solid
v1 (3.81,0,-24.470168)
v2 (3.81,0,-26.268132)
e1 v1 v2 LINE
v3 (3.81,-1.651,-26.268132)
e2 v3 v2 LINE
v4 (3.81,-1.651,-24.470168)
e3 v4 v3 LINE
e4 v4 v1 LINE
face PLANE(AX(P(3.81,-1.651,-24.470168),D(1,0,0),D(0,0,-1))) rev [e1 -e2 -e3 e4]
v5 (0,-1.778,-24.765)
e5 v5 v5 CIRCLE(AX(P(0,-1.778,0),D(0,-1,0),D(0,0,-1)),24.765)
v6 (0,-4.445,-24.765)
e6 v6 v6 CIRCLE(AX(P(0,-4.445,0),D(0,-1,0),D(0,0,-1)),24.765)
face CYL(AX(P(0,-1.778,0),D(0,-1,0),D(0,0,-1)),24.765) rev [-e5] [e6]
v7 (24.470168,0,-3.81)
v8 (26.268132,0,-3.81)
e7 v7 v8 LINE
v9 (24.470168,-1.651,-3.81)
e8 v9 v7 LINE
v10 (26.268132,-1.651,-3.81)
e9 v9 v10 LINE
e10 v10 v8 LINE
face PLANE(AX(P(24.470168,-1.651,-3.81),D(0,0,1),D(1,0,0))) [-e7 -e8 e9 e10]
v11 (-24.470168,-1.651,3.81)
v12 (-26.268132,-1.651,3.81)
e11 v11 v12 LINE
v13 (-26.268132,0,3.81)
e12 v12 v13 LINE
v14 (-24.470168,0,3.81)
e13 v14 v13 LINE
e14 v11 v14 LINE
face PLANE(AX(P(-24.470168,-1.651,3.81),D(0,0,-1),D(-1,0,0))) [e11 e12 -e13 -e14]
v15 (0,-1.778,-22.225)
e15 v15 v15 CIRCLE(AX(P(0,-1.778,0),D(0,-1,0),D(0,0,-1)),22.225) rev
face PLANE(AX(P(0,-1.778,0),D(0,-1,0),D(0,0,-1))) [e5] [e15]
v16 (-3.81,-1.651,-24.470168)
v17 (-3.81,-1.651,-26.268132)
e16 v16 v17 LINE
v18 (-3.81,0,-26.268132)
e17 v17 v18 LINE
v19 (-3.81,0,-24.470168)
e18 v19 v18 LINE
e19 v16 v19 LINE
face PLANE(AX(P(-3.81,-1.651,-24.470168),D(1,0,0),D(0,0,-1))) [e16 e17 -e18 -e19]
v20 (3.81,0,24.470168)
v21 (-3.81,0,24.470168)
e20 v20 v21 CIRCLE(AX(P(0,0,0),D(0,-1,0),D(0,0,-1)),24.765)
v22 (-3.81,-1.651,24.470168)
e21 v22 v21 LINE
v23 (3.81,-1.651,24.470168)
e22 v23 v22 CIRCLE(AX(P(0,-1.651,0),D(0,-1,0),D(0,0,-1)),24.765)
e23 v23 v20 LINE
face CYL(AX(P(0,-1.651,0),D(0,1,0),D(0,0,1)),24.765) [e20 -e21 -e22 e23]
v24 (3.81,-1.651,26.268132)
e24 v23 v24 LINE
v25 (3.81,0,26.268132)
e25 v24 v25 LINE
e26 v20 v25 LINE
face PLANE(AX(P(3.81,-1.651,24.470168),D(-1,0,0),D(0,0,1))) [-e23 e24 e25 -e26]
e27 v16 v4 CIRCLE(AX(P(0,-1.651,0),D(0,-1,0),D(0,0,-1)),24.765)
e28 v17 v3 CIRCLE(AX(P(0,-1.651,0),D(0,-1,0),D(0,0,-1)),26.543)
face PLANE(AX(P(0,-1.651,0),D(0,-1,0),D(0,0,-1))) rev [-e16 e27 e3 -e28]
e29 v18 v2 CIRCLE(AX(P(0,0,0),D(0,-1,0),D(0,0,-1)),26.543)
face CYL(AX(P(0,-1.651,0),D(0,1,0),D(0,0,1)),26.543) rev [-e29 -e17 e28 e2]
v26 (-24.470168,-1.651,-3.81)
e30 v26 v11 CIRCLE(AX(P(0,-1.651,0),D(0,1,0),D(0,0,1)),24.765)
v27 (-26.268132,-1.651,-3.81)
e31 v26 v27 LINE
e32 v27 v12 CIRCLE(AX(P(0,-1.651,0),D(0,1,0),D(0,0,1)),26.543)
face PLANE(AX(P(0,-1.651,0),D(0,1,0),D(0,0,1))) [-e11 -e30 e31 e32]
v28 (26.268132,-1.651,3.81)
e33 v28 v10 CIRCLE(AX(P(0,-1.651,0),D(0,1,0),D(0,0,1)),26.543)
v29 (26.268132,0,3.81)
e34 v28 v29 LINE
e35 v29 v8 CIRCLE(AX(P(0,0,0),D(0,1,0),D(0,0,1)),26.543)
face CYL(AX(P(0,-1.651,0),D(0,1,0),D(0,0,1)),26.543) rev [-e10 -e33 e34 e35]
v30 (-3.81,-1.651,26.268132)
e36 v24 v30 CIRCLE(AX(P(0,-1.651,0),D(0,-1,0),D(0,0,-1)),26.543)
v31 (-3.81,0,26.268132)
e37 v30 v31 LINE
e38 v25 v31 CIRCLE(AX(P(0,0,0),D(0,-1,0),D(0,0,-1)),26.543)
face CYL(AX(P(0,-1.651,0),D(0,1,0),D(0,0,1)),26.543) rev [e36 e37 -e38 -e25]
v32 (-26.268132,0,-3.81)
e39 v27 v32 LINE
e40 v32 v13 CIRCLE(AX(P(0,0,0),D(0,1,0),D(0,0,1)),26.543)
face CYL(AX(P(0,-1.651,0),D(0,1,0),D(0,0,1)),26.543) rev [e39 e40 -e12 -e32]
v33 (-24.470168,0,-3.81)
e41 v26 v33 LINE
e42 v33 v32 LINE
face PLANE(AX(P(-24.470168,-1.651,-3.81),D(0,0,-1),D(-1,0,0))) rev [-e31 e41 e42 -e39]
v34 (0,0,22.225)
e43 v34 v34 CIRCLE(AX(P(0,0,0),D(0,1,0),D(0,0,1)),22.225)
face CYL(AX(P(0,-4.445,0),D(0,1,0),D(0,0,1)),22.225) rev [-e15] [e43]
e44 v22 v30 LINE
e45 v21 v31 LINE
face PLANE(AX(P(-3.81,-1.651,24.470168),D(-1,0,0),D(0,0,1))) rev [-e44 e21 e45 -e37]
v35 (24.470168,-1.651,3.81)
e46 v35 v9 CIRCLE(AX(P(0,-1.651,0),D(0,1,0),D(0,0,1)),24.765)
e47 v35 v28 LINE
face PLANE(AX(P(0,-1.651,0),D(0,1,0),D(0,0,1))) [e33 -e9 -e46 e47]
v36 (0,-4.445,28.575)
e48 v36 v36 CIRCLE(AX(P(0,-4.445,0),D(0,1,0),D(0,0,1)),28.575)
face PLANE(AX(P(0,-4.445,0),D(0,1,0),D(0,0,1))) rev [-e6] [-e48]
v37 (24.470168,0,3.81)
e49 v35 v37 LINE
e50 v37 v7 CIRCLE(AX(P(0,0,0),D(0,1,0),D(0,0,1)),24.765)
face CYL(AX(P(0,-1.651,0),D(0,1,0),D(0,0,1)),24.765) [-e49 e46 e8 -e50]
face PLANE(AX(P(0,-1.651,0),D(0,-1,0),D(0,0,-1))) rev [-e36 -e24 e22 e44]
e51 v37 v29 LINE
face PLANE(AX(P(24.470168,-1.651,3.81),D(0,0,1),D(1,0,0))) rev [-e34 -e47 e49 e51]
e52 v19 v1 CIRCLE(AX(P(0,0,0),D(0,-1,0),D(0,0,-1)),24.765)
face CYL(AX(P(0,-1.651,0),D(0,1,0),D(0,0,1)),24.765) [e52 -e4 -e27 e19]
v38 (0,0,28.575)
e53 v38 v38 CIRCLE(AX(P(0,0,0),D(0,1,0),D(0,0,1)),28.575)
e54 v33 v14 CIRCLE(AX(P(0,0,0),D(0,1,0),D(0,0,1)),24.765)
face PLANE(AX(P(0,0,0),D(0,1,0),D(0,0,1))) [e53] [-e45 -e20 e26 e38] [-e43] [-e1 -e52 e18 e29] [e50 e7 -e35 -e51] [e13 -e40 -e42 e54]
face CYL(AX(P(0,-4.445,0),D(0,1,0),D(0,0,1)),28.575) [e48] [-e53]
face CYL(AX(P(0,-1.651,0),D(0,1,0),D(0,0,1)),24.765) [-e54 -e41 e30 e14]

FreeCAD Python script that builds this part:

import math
import FreeCAD as App
import Part
import Sketcher

V = App.Vector
Q = App.Units.Quantity

doc = App.newDocument("Part")
body = doc.addObject("PartDesign::Body", "Body")

sketch1 = doc.addObject("Sketcher::SketchObject", "Sketch")
body.addObject(sketch1)
sketch1.AttachmentSupport = (doc.XZ_Plane, [""])
sketch1.MapMode = "FlatFace"
sketch1.addGeometry(Part.Circle(V(0, 0, 0), V(0, 0, 1), 28.575), False)
sketch1.addConstraint([
    Sketcher.Constraint("Coincident", 0, 3, -1, 1),
    Sketcher.Constraint("Diameter", 0, Q("2.25 in")),
])
pad1 = doc.addObject("PartDesign::Pad", "Pad")
body.addObject(pad1)
pad1.Profile = sketch1
pad1.Length = Q("0.175 in")

sketch2 = doc.addObject("Sketcher::SketchObject", "Sketch001")
body.addObject(sketch2)
sketch2.AttachmentSupport = (doc.XZ_Plane, [""])
sketch2.MapMode = "FlatFace"
sketch2.addGeometry(Part.Circle(V(0, 0, 0), V(0, 0, 1), 22.225), False)
sketch2.addConstraint([
    Sketcher.Constraint("Coincident", 0, 3, -1, 1),
    Sketcher.Constraint("Diameter", 0, Q("1.75 in")),
])
pocket1 = doc.addObject("PartDesign::Pocket", "Pocket")
body.addObject(pocket1)
pocket1.Profile = sketch2
pocket1.Type = "ThroughAll"
pocket1.Reversed = True

sketch3 = doc.addObject("Sketcher::SketchObject", "Sketch002")
body.addObject(sketch3)
sketch3.AttachmentSupport = (doc.XZ_Plane, [""])
sketch3.MapMode = "FlatFace"
sketch3.addGeometry([
    Part.LineSegment(V(26.268132, -3.81, 0), V(24.470168, -3.81, 0)),
    Part.ArcOfCircle(Part.Circle(V(0, 0, 0), V(0, 0, 1), 24.765), math.radians(-8.849883), math.radians(8.849883)),
    Part.LineSegment(V(24.470168, 3.81, 0), V(26.268132, 3.81, 0)),
    Part.ArcOfCircle(Part.Circle(V(0, 0, 0), V(0, 0, 1), 26.543), math.radians(-8.252782), math.radians(8.252782)),
    Part.LineSegment(V(-3.81, -26.268132, 0), V(-3.81, -24.470168, 0)),
    Part.ArcOfCircle(Part.Circle(V(0, 0, 0), V(0, 0, 1), 24.765), math.radians(-98.849883), math.radians(-81.150117)),
    Part.LineSegment(V(3.81, -24.470168, 0), V(3.81, -26.268132, 0)),
    Part.ArcOfCircle(Part.Circle(V(0, 0, 0), V(0, 0, 1), 26.543), math.radians(-98.252782), math.radians(-81.747218)),
    Part.LineSegment(V(-26.268132, 3.81, 0), V(-24.470168, 3.81, 0)),
    Part.ArcOfCircle(Part.Circle(V(0, 0, 0), V(0, 0, 1), 24.765), math.radians(171.150117), math.radians(188.849883)),
    Part.LineSegment(V(-24.470168, -3.81, 0), V(-26.268132, -3.81, 0)),
    Part.ArcOfCircle(Part.Circle(V(0, 0, 0), V(0, 0, 1), 26.543), math.radians(171.747218), math.radians(188.252782)),
    Part.LineSegment(V(3.81, 26.268132, 0), V(3.81, 24.470168, 0)),
    Part.ArcOfCircle(Part.Circle(V(0, 0, 0), V(0, 0, 1), 24.765), math.radians(81.150117), math.radians(98.849883)),
    Part.LineSegment(V(-3.81, 24.470168, 0), V(-3.81, 26.268132, 0)),
    Part.ArcOfCircle(Part.Circle(V(0, 0, 0), V(0, 0, 1), 26.543), math.radians(81.747218), math.radians(98.252782)),
], False)
sketch3.addConstraint([
    Sketcher.Constraint("Coincident", 0, 2, 1, 1),
    Sketcher.Constraint("Coincident", 1, 2, 2, 1),
    Sketcher.Constraint("Coincident", 2, 2, 3, 2),
    Sketcher.Constraint("Coincident", 3, 1, 0, 1),
    Sketcher.Constraint("Coincident", 4, 2, 5, 1),
    Sketcher.Constraint("Coincident", 5, 2, 6, 1),
    Sketcher.Constraint("Coincident", 6, 2, 7, 2),
    Sketcher.Constraint("Coincident", 7, 1, 4, 1),
    Sketcher.Constraint("Coincident", 8, 2, 9, 1),
    Sketcher.Constraint("Coincident", 9, 2, 10, 1),
    Sketcher.Constraint("Coincident", 10, 2, 11, 2),
    Sketcher.Constraint("Coincident", 11, 1, 8, 1),
    Sketcher.Constraint("Coincident", 12, 2, 13, 1),
    Sketcher.Constraint("Coincident", 13, 2, 14, 1),
    Sketcher.Constraint("Coincident", 14, 2, 15, 2),
    Sketcher.Constraint("Coincident", 15, 1, 12, 1),
    Sketcher.Constraint("Horizontal", 0),
    Sketcher.Constraint("Horizontal", 2),
    Sketcher.Constraint("Vertical", 4),
    Sketcher.Constraint("Vertical", 6),
    Sketcher.Constraint("Horizontal", 8),
    Sketcher.Constraint("Horizontal", 10),
    Sketcher.Constraint("Vertical", 12),
    Sketcher.Constraint("Vertical", 14),
    Sketcher.Constraint("Coincident", 1, 3, -1, 1),
    Sketcher.Constraint("Coincident", 3, 3, -1, 1),
    Sketcher.Constraint("Coincident", 5, 3, -1, 1),
    Sketcher.Constraint("Coincident", 7, 3, -1, 1),
    Sketcher.Constraint("Coincident", 9, 3, -1, 1),
    Sketcher.Constraint("Coincident", 11, 3, -1, 1),
    Sketcher.Constraint("Coincident", 13, 3, -1, 1),
    Sketcher.Constraint("Coincident", 15, 3, -1, 1),
    Sketcher.Constraint("Equal", 1, 5),
    Sketcher.Constraint("Equal", 3, 7),
    Sketcher.Constraint("Equal", 5, 9),
    Sketcher.Constraint("Equal", 7, 11),
    Sketcher.Constraint("Equal", 9, 13),
    Sketcher.Constraint("Equal", 11, 15),
    Sketcher.Constraint("Horizontal", 4, 2, 5, 2),
    Sketcher.Constraint("Horizontal", 2, 2, 8, 2),
    Sketcher.Constraint("Horizontal", 3, 1, 9, 2),
    Sketcher.Constraint("Horizontal", 12, 2, 13, 2),
    Sketcher.Constraint("Vertical", 0, 2, 1, 2),
    Sketcher.Constraint("Vertical", 6, 2, 12, 2),
    Sketcher.Constraint("Equal", 10, 4),
    Sketcher.Constraint("Radius", 1, Q("0.975 in")),
    Sketcher.Constraint("Radius", 3, Q("1.045 in")),
    Sketcher.Constraint("DistanceY", 0, 2, 1, 2, Q("0.3 in")),
])
pocket2 = doc.addObject("PartDesign::Pocket", "Pocket001")
body.addObject(pocket2)
pocket2.Profile = sketch3
pocket2.Length = Q("0.065 in")
pocket2.Reversed = True

sketch4 = doc.addObject("Sketcher::SketchObject", "Sketch003")
body.addObject(sketch4)
sketch4.AttachmentSupport = (doc.XZ_Plane, [""])
sketch4.MapMode = "FlatFace"
sketch4.AttachmentOffset = App.Placement(V(0, 0, 0.07 * 25.4), App.Rotation())
sketch4.addGeometry(Part.Circle(V(0, 0, 0), V(0, 0, 1), 24.765), False)
sketch4.addConstraint([
    Sketcher.Constraint("Coincident", 0, 3, -1, 1),
    Sketcher.Constraint("Diameter", 0, Q("1.95 in")),
])
pocket3 = doc.addObject("PartDesign::Pocket", "Pocket002")
body.addObject(pocket3)
pocket3.Profile = sketch4
pocket3.Length = Q("0.105 in")
pocket3.Reversed = True

doc.recompute()
